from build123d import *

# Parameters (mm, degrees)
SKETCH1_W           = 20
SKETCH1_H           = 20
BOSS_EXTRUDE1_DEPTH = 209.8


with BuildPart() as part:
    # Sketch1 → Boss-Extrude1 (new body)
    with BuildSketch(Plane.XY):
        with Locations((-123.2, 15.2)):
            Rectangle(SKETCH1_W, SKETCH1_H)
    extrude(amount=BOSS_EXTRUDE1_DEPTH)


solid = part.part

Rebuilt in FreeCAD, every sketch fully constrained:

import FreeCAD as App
import Part
import Sketcher
from FreeCAD import Vector
Q = App.Units.Quantity


def add_polygon(sketch, points):
    """Adds a closed chain of lines whose ends are joined by coincident constraints."""
    first, n = sketch.GeometryCount, len(points)
    for a, b in zip(points, points[1:] + points[:1]):
        sketch.addGeometry(Part.LineSegment(App.Vector(*a, 0), App.Vector(*b, 0)), False)
    for i in range(n):
        sketch.addConstraint(Sketcher.Constraint("Coincident", first + i, 2, first + (i + 1) % n, 1))

doc = App.newDocument("Part")
body = doc.addObject("PartDesign::Body", "Body")

sketch1 = body.newObject("Sketcher::SketchObject", "Sketch")
sketch1.AttachmentSupport = (doc.getObject("XY_Plane"), [""])
sketch1.MapMode = "FlatFace"
add_polygon(sketch1, [(-133.2, 25.2), (-133.2, 5.2), (-113.2, 5.2), (-113.2, 25.2)])
sketch1.addConstraint(Sketcher.Constraint("Vertical", 0))
sketch1.addConstraint(Sketcher.Constraint("Horizontal", 1))
sketch1.addConstraint(Sketcher.Constraint("Vertical", 2))
sketch1.addConstraint(Sketcher.Constraint("Horizontal", 3))
sketch1.addConstraint(Sketcher.Constraint("Equal", 3, 0))
sketch1.addConstraint(Sketcher.Constraint("DistanceX", 1, 1, 1, 2, Q("20 mm")))
sketch1.addConstraint(Sketcher.Constraint("DistanceX", 0, 2, -1, 1, Q("133.2 mm")))
sketch1.addConstraint(Sketcher.Constraint("DistanceY", -1, 1, 0, 2, Q("5.2 mm")))
pad1 = body.newObject("PartDesign::Pad", "Pad")
pad1.Profile = sketch1
pad1.Length = 209.8

doc.recompute()
